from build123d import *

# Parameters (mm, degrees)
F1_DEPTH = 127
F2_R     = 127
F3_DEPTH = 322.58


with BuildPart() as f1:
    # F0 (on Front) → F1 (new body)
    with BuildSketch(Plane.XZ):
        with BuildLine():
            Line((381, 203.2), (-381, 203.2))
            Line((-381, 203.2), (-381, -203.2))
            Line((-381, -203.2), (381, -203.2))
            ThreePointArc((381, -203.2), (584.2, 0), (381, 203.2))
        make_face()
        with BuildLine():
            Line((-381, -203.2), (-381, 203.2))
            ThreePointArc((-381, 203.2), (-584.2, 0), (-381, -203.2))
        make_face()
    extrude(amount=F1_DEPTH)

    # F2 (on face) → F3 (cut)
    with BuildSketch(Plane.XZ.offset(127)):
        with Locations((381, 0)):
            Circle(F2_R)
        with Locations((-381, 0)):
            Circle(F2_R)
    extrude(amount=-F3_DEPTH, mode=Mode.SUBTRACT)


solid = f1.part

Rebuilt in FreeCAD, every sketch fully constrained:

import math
import FreeCAD as App
import Part
import Sketcher

V = App.Vector
Q = App.Units.Quantity

doc = App.newDocument("Part")
body = doc.addObject("PartDesign::Body", "Body")

# Sketch on XZ plane
sketch1 = body.newObject("Sketcher::SketchObject", "Sketch")
sketch1.AttachmentSupport = (doc.getObject("XZ_Plane"), [""])
sketch1.MapMode = "FlatFace"
sketch1.addGeometry([
    Part.LineSegment(V(381, 203.2, 0), V(-381, 203.2, 0)),
    Part.ArcOfCircle(Part.Circle(V(-381, 0, 0), V(0, 0, 1), 203.2), math.radians(90), math.radians(270)),
    Part.LineSegment(V(-381, -203.2, 0), V(381, -203.2, 0)),
    Part.ArcOfCircle(Part.Circle(V(381, 0, 0), V(0, 0, 1), 203.2), math.radians(-90), math.radians(90)),
], False)
sketch1.addConstraint([
    Sketcher.Constraint("Tangent", 0, 2, 1, 1),
    Sketcher.Constraint("Tangent", 1, 2, 2, 1),
    Sketcher.Constraint("Tangent", 2, 2, 3, 1),
    Sketcher.Constraint("Tangent", 3, 2, 0, 1),
    Sketcher.Constraint("Horizontal", 0),
    Sketcher.Constraint("Horizontal", 2),
    Sketcher.Constraint("Symmetric", 1, 3, 3, 3, -1, 1),
    Sketcher.Constraint("Radius", 1, Q("8 in")),
    Sketcher.Constraint("DistanceX", 0, 2, 0, 1, Q("30 in")),
])
pad1 = body.newObject("PartDesign::Pad", "Pad")
pad1.Profile = sketch1
pad1.Length = Q("5 in")

# Sketch on XZ plane
sketch2 = body.newObject("Sketcher::SketchObject", "Sketch001")
sketch2.AttachmentSupport = (doc.getObject("XZ_Plane"), [""])
sketch2.MapMode = "FlatFace"
sketch2.AttachmentOffset = App.Placement(V(0, 0, 5 * 25.4), App.Rotation())
sketch2.addGeometry([
    Part.Circle(V(381, 0, 0), V(0, 0, 1), 127),
    Part.Circle(V(-381, 0, 0), V(0, 0, 1), 127),
], False)
sketch2.addConstraint([
    Sketcher.Constraint("Equal", 0, 1),
    Sketcher.Constraint("Symmetric", 0, 3, 1, 3, -1, 1),
    Sketcher.Constraint("PointOnObject", 0, 3, -1),
    Sketcher.Constraint("Diameter", 0, Q("10 in")),
    Sketcher.Constraint("DistanceX", -1, 1, 0, 3, Q("15 in")),
])
pocket1 = body.newObject("PartDesign::Pocket", "Pocket")
pocket1.Profile = sketch2
pocket1.Length = Q("12.7 in")

doc.recompute()
